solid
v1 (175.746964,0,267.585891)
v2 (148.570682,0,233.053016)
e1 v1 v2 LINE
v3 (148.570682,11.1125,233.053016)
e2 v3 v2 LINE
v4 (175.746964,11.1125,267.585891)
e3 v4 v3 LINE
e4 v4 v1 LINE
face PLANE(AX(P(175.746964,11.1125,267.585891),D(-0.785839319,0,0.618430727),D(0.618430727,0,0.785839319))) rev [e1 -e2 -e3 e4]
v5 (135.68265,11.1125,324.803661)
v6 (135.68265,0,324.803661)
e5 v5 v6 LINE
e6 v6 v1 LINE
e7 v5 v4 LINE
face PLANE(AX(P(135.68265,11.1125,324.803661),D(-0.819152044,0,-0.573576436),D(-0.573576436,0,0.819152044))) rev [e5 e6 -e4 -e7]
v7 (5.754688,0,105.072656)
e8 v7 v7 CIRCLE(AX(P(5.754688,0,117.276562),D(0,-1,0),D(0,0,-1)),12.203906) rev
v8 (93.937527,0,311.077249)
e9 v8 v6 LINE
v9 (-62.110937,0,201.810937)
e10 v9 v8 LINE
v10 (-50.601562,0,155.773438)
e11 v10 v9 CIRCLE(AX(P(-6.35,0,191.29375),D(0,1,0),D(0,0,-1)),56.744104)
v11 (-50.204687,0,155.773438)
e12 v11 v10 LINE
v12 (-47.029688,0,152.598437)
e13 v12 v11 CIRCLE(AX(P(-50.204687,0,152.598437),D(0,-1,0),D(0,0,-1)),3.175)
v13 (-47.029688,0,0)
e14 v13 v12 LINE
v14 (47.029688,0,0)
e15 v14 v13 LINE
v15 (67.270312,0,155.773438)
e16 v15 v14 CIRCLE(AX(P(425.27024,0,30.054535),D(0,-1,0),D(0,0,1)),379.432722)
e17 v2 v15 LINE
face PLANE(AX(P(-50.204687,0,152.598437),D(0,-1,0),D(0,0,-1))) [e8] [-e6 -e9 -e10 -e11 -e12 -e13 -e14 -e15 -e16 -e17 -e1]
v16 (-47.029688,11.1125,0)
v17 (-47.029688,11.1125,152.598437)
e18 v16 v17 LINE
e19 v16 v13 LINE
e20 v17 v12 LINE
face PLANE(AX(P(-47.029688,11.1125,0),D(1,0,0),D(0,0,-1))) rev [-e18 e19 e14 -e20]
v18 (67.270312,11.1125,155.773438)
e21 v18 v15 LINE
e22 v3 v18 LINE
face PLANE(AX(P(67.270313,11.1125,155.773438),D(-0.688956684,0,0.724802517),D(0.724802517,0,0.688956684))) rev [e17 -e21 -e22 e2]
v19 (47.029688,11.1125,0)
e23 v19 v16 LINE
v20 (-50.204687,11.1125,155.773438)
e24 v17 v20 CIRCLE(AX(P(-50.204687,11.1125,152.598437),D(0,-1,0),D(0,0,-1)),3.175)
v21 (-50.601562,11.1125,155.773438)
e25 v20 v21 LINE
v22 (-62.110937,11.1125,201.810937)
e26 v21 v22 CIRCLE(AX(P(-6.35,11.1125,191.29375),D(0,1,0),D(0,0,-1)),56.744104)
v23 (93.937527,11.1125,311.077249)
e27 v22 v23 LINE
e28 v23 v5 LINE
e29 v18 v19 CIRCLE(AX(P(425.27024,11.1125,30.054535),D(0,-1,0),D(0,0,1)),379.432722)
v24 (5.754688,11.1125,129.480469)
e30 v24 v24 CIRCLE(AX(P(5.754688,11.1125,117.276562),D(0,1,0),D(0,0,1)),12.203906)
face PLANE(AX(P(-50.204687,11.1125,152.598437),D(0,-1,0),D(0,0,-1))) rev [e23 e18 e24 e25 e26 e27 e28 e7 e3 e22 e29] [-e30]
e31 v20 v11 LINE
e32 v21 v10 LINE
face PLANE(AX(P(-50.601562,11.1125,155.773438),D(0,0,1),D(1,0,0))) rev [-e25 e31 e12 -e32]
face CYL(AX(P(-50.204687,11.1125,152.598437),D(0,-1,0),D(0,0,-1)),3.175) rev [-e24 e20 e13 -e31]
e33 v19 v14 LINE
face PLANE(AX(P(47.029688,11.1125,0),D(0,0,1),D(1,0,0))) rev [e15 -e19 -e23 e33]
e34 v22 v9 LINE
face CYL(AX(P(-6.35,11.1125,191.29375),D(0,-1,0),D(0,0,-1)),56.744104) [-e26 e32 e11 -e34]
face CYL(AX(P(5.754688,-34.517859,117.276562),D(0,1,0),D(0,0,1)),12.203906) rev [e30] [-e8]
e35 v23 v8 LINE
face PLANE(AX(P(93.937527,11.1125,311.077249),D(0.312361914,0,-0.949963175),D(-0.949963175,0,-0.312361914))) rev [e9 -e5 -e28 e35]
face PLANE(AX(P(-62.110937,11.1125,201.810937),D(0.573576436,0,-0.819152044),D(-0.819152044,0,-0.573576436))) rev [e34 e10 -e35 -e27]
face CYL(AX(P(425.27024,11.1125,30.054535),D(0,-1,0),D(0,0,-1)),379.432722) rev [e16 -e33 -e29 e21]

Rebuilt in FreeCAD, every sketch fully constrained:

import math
import FreeCAD as App
import Part
import Sketcher

V = App.Vector
Q = App.Units.Quantity

doc = App.newDocument("Part")
params = doc.addObject("Spreadsheet::Sheet", "Params")
for row, (alias, value) in enumerate([
    ("sketch1_diameter", "0.625 in"),
    ("sketch1_radius", "0.125 in"),
    ("sketch1_length", "7.5 in"),
    ("sketch1_length2", "2.75 in"),
    ("sketch1_width", "3.703125 in"),
    ("pad1_length", "0.4375 in"),
    ("pocket1_length", "0.4375 in"),
], start=1):
    params.set(f"A{row}", alias)
    params.set(f"B{row}", "=" + value)
    params.setAlias(f"B{row}", alias)

body = doc.addObject("PartDesign::Body", "Body")

sketch1 = body.newObject("Sketcher::SketchObject", "Sketch")
sketch1.AttachmentSupport = (doc.getObject("XZ_Plane"), [""])
sketch1.MapMode = "FlatFace"
sketch1.addGeometry([
    Part.LineSegment(V(47.03, 0, 0), V(-47.03, 0, 0)),
    Part.LineSegment(V(-47.03, 0, 0), V(-47.03, 152.6, 0)),
    Part.ArcOfCircle(Part.Circle(V(-50.2, 152.6, 0), V(0, 0, 1), 3.18), math.radians(0), math.radians(90)),
    Part.LineSegment(V(-50.2, 155.77, 0), V(-50.6, 155.77, 0)),
    Part.ArcOfCircle(Part.Circle(V(-6.35, 191.29, 0), V(0, 0, 1), 56.74), math.radians(169), math.radians(219)),
    Part.LineSegment(V(-62.11, 201.81, 0), V(93.94, 311.08, 0)),
    Part.LineSegment(V(93.94, 311.08, 0), V(135.68, 324.8, 0)),
    Part.LineSegment(V(135.68, 324.8, 0), V(175.75, 267.59, 0)),
    Part.LineSegment(V(175.75, 267.59, 0), V(148.57, 233.05, 0)),
    Part.LineSegment(V(148.57, 233.05, 0), V(67.27, 155.77, 0)),
    Part.ArcOfCircle(Part.Circle(V(425.27, 30.05, 0), V(0, 0, 1), 379.43), math.radians(161), math.radians(185)),
    Part.Circle(V(5.75, 117.28, 0), V(0, 0, 1), 7.94),
], False)
sketch1.addConstraint([
    Sketcher.Constraint("Coincident", 0, 2, 1, 1),
    Sketcher.Constraint("Tangent", 1, 2, 2, 1),
    Sketcher.Constraint("Tangent", 2, 2, 3, 1),
    Sketcher.Constraint("Coincident", 3, 2, 4, 2),
    Sketcher.Constraint("Coincident", 4, 1, 5, 1),
    Sketcher.Constraint("Coincident", 5, 2, 6, 1),
    Sketcher.Constraint("Coincident", 6, 2, 7, 1),
    Sketcher.Constraint("Coincident", 7, 2, 8, 1),
    Sketcher.Constraint("Coincident", 8, 2, 9, 1),
    Sketcher.Constraint("Coincident", 9, 2, 10, 1),
    Sketcher.Constraint("Coincident", 10, 2, 0, 1),
    Sketcher.Constraint("Horizontal", 0),
    Sketcher.Constraint("Vertical", 1),
    Sketcher.Constraint("Horizontal", 3),
    Sketcher.Constraint("Symmetric", 0, 2, 10, 2, -1, 1),
    Sketcher.Constraint("Perpendicular", 5, 7),
    Sketcher.Constraint("Horizontal", 3, 2, 9, 2),
    Sketcher.Constraint("Equal", 6, 8),
    Sketcher.Constraint("Diameter", 11, Q("0.625 in")),
    Sketcher.Constraint("Angle", 5, Q("35 deg")),
    Sketcher.Constraint("Radius", 2, Q("0.125 in")),
    Sketcher.Constraint("Distance", 5, Q("7.5 in")),
    Sketcher.Constraint("DistanceX", 1, 2, 9, 2, Q("4.5 in")),
    Sketcher.Constraint("Distance", 7, Q("2.75 in")),
    Sketcher.Constraint("DistanceX", 0, 2, 0, 1, Q("3.703125 in")),
    Sketcher.Constraint("DistanceX", 3, 2, 3, 1, Q("0.015625 in")),
    Sketcher.Constraint("DistanceX", 4, 3, -1, 1, Q("0.25 in")),
    Sketcher.Constraint("DistanceY", -1, 1, 4, 3, Q("7.53125 in")),
    Sketcher.Constraint("DistanceX", 2, 3, 11, 3, Q("2.203125 in")),
    Sketcher.Constraint("DistanceY", 11, 3, 2, 3, Q("1.390625 in")),
    Sketcher.Constraint("DistanceX", 4, 1, 3, 2, Q("0.453125 in")),
    Sketcher.Constraint("DistanceY", 3, 2, 4, 1, Q("1.8125 in")),
    Sketcher.Constraint("Radius", 10, Q("379.432722 mm")),
    Sketcher.Constraint("DistanceY", 11, 3, 6, 2, Q("207.527099 mm")),
    Sketcher.Constraint("DistanceX", 4, 1, 7, 2, Q("237.857902 mm")),
    Sketcher.Constraint("DistanceX", 8, 2, 7, 2, Q("27.176282 mm")),
])
sketch1.setExpression("Constraints[18]", "Params.sketch1_diameter")
sketch1.setExpression("Constraints[20]", "Params.sketch1_radius")
sketch1.setExpression("Constraints[21]", "Params.sketch1_length")
sketch1.setExpression("Constraints[23]", "Params.sketch1_length2")
sketch1.setExpression("Constraints[24]", "Params.sketch1_width")
pad1 = body.newObject("PartDesign::Pad", "Pad")
pad1.Profile = sketch1
pad1.setExpression("Length", "Params.pad1_length")
pad1.Reversed = True

sketch2 = body.newObject("Sketcher::SketchObject", "Sketch001")
sketch2.AttachmentSupport = (doc.getObject("XZ_Plane"), [""])
sketch2.MapMode = "FlatFace"
sketch2.AttachmentOffset = App.Placement(V(0, 0, -0.4375 * 25.4), App.Rotation())
sketch2.addGeometry(Part.Circle(V(6, 117, 0), V(0, 0, 1), 12), False)
sketch2.addConstraint([
    Sketcher.Constraint("Diameter", 0, Q("24.407812 mm")),
    Sketcher.Constraint("DistanceX", -1, 1, 0, 3, Q("5.754688 mm")),
    Sketcher.Constraint("DistanceY", -1, 1, 0, 3, Q("117.276562 mm")),
])
pocket1 = body.newObject("PartDesign::Pocket", "Pocket")
pocket1.Profile = sketch2
pocket1.setExpression("Length", "Params.pocket1_length")
pocket1.Reversed = True

doc.recompute()
